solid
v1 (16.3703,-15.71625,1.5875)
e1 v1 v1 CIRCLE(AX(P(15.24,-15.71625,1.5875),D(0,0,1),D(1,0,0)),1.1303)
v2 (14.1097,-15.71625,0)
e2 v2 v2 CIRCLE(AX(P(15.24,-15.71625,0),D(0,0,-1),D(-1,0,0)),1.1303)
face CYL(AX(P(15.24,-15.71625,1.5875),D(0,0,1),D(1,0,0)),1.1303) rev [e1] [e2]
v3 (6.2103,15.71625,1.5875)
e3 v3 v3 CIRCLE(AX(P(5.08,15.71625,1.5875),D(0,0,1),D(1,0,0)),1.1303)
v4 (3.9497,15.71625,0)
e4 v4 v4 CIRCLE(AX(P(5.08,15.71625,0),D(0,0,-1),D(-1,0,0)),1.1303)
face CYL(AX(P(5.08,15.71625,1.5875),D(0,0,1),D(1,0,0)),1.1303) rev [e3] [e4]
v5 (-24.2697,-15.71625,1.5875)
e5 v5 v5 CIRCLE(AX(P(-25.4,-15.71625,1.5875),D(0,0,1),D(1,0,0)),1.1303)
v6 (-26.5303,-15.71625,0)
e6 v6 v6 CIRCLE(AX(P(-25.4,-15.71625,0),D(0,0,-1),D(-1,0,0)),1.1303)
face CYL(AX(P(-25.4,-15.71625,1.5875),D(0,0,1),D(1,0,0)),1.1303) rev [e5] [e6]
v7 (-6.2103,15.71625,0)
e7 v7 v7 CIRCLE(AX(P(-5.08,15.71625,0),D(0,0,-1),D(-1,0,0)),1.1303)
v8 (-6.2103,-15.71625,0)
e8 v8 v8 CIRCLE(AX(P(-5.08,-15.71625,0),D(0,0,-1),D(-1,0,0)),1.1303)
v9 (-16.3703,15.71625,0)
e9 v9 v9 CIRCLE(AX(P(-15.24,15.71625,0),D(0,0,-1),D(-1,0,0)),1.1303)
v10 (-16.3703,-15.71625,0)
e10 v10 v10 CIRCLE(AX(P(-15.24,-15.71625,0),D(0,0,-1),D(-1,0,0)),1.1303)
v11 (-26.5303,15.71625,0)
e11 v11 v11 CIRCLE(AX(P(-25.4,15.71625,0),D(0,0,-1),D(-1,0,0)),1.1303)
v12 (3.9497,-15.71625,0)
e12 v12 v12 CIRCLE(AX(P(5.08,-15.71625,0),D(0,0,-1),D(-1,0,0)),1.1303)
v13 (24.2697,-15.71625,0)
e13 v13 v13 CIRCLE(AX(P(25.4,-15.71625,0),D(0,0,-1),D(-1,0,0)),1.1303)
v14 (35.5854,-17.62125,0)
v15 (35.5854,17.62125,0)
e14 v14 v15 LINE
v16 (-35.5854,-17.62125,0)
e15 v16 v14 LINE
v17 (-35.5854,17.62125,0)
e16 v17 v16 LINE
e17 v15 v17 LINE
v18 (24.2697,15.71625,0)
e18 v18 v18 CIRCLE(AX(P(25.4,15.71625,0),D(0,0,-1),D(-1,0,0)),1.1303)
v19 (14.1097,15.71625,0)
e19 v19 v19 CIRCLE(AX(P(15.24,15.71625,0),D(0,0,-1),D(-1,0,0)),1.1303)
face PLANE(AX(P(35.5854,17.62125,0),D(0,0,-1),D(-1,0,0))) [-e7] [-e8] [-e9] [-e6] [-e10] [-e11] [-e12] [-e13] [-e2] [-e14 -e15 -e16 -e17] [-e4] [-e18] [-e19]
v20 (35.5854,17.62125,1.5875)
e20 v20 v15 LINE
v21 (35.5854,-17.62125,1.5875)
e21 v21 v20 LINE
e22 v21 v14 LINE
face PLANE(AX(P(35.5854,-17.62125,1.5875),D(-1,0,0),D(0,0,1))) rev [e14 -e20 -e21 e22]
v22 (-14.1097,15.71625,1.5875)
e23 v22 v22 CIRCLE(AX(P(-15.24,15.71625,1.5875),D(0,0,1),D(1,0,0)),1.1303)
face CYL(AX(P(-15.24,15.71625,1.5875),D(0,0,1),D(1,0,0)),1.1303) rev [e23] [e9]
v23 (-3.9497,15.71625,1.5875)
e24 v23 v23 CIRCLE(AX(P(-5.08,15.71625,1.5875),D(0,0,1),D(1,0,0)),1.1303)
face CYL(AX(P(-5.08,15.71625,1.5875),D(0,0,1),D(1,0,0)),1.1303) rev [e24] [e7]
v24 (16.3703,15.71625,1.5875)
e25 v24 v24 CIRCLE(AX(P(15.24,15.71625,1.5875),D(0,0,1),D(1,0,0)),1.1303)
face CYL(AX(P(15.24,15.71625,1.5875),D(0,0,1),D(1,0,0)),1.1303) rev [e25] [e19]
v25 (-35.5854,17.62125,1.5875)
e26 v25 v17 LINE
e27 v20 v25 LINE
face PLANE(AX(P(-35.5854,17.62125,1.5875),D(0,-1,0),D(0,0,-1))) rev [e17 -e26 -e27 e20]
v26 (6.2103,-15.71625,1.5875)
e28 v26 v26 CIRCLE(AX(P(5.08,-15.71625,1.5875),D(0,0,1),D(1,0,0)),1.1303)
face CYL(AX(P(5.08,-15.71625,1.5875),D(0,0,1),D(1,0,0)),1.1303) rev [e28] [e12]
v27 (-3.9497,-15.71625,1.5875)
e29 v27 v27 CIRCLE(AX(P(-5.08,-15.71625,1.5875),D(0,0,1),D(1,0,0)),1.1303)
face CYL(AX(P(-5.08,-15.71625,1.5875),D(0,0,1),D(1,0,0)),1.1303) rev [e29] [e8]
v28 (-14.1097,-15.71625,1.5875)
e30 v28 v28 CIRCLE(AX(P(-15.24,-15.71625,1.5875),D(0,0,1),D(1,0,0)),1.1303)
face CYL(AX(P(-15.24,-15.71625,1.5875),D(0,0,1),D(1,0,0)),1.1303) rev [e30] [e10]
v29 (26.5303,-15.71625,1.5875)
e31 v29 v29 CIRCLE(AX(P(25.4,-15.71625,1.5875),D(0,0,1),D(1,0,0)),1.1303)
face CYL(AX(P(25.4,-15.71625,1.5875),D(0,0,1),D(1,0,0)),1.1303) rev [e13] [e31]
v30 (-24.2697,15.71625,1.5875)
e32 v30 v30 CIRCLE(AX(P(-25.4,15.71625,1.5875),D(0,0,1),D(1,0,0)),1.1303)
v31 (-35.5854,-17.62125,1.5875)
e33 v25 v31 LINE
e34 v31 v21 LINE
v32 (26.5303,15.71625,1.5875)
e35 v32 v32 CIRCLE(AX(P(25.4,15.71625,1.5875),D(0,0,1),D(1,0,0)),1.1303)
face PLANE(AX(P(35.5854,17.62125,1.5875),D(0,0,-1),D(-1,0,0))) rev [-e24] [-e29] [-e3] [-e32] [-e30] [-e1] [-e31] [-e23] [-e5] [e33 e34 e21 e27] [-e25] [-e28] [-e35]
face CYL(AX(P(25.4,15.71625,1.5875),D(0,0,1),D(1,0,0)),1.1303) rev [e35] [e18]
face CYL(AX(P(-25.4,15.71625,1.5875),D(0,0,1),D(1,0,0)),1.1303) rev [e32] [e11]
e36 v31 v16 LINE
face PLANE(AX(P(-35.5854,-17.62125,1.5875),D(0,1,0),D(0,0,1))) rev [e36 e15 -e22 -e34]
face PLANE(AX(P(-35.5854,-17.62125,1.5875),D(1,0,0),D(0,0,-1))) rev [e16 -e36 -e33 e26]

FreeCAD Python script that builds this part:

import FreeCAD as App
import Part
import Sketcher

V = App.Vector
Q = App.Units.Quantity

doc = App.newDocument("Part")
body = doc.addObject("PartDesign::Body", "Body")

# Sketch on XY plane
sketch1 = body.newObject("Sketcher::SketchObject", "Sketch")
sketch1.AttachmentSupport = (doc.getObject("XY_Plane"), [""])
sketch1.MapMode = "FlatFace"
sketch1.addGeometry(Part.LineSegment(V(-35.5854, 17.62125, 0), V(-35.5854, -17.62125, 0)), False)
sketch1.addGeometry(Part.LineSegment(V(-35.5854, -17.62125, 0), V(35.5854, -17.62125, 0)), False)
sketch1.addGeometry(Part.LineSegment(V(35.5854, -17.62125, 0), V(35.5854, 17.62125, 0)), False)
sketch1.addGeometry(Part.LineSegment(V(35.5854, 17.62125, 0), V(-35.5854, 17.62125, 0)), False)
sketch1.addConstraint(Sketcher.Constraint("Coincident", 0, 2, 1, 1))
sketch1.addConstraint(Sketcher.Constraint("Coincident", 1, 2, 2, 1))
sketch1.addConstraint(Sketcher.Constraint("Coincident", 2, 2, 3, 1))
sketch1.addConstraint(Sketcher.Constraint("Coincident", 3, 2, 0, 1))
sketch1.addConstraint(Sketcher.Constraint("Vertical", 0))
sketch1.addConstraint(Sketcher.Constraint("Horizontal", 1))
sketch1.addConstraint(Sketcher.Constraint("Vertical", 2))
sketch1.addConstraint(Sketcher.Constraint("Horizontal", 3))
sketch1.addConstraint(Sketcher.Constraint("Symmetric", 0, 2, 2, 2, -1, 1))
sketch1.addConstraint(Sketcher.Constraint("DistanceX", 1, 1, 1, 2, Q("2.802 in")))
sketch1.addConstraint(Sketcher.Constraint("DistanceY", 0, 2, 0, 1, Q("1.3875 in")))
pad1 = body.newObject("PartDesign::Pad", "Pad")
pad1.Profile = sketch1
pad1.Length = Q("0.0625 in")

# Sketch on YZ plane
sketch2 = body.newObject("Sketcher::SketchObject", "Sketch001")
sketch2.AttachmentSupport = (doc.getObject("YZ_Plane"), [""])
sketch2.MapMode = "FlatFace"
sketch2.AttachmentOffset = App.Placement(V(0, 0, -1 * 25.4), App.Rotation())
sketch2.addGeometry(Part.LineSegment(V(15.71625, -2.266653, 0), V(15.71625, 1.5875, 0)), False)
sketch2.addGeometry(Part.LineSegment(V(15.71625, 1.5875, 0), V(14.58595, 1.5875, 0)), False)
sketch2.addGeometry(Part.LineSegment(V(14.58595, 1.5875, 0), V(14.58595, -1.5875, 0)), False)
sketch2.addGeometry(Part.LineSegment(V(14.58595, -1.5875, 0), V(15.71625, -2.266653, 0)), False)
sketch2.addGeometry(Part.LineSegment(V(15.71625, 1.5875, 0), V(15.71625, -2.266653, 0)), True)  # axis
sketch2.addConstraint(Sketcher.Constraint("Coincident", 0, 2, 1, 1))
sketch2.addConstraint(Sketcher.Constraint("Coincident", 1, 2, 2, 1))
sketch2.addConstraint(Sketcher.Constraint("Coincident", 2, 2, 3, 1))
sketch2.addConstraint(Sketcher.Constraint("Coincident", 3, 2, 0, 1))
sketch2.addConstraint(Sketcher.Constraint("Vertical", 0))
sketch2.addConstraint(Sketcher.Constraint("Horizontal", 1))
sketch2.addConstraint(Sketcher.Constraint("Vertical", 2))
sketch2.addConstraint(Sketcher.Constraint("Vertical", 4))
sketch2.addConstraint(Sketcher.Constraint("Coincident", 4, 1, 0, 2))
sketch2.addConstraint(Sketcher.Constraint("Equal", 0, 4))
sketch2.addConstraint(Sketcher.Constraint("Angle", 3, Q("-31 deg")))
sketch2.addConstraint(Sketcher.Constraint("DistanceY", 2, 2, 2, 1, Q("0.125 in")))
sketch2.addConstraint(Sketcher.Constraint("DistanceX", 1, 2, 1, 1, Q("0.0445 in")))
sketch2.addConstraint(Sketcher.Constraint("DistanceY", -1, 1, 0, 2, Q("0.0625 in")))
sketch2.addConstraint(Sketcher.Constraint("DistanceX", -1, 1, 0, 2, 15.71625))
groove = body.newObject("PartDesign::Groove", "Groove")
groove.Profile = sketch2
groove.ReferenceAxis = (sketch2, ["Axis0"])
groove.Angle = 360
doc.recompute()

linearpattern = body.newObject("PartDesign::LinearPattern", "LinearPattern")
linearpattern.Originals = [groove]
linearpattern.Direction = (doc.getObject("X_Axis"), [""])
linearpattern.Mode = "offset"
linearpattern.Offset = Q("0.4 in")
linearpattern.Occurrences = 6
body.Tip = linearpattern
doc.recompute()

mirrored = body.newObject("PartDesign::Mirrored", "Mirrored")
mirrored.Originals = [groove]
mirrored.MirrorPlane = (doc.getObject("XZ_Plane"), [""])
body.Tip = mirrored

# Sketch on YZ plane
sketch3 = body.newObject("Sketcher::SketchObject", "Sketch002")
sketch3.AttachmentSupport = (doc.getObject("YZ_Plane"), [""])
sketch3.MapMode = "FlatFace"
sketch3.AttachmentOffset = App.Placement(V(0, 0, -0.6 * 25.4), App.Rotation())
sketch3.addGeometry(Part.LineSegment(V(-15.71625, 1.5875, 0), V(-15.71625, -2.266653, 0)), False)
sketch3.addGeometry(Part.LineSegment(V(-15.71625, -2.266653, 0), V(-14.58595, -1.5875, 0)), False)
sketch3.addGeometry(Part.LineSegment(V(-14.58595, -1.5875, 0), V(-14.58595, 1.5875, 0)), False)
sketch3.addGeometry(Part.LineSegment(V(-14.58595, 1.5875, 0), V(-15.71625, 1.5875, 0)), False)
sketch3.addGeometry(Part.LineSegment(V(-15.71625, -2.266653, 0), V(-15.71625, 1.5875, 0)), True)  # axis
sketch3.addConstraint(Sketcher.Constraint("Coincident", 0, 2, 1, 1))
sketch3.addConstraint(Sketcher.Constraint("Coincident", 1, 2, 2, 1))
sketch3.addConstraint(Sketcher.Constraint("Coincident", 2, 2, 3, 1))
sketch3.addConstraint(Sketcher.Constraint("Coincident", 3, 2, 0, 1))
sketch3.addConstraint(Sketcher.Constraint("Vertical", 0))
sketch3.addConstraint(Sketcher.Constraint("Vertical", 2))
sketch3.addConstraint(Sketcher.Constraint("Horizontal", 3))
sketch3.addConstraint(Sketcher.Constraint("Vertical", 4))
sketch3.addConstraint(Sketcher.Constraint("Coincident", 4, 1, 0, 2))
sketch3.addConstraint(Sketcher.Constraint("Horizontal", 2, 2, 4, 2))
sketch3.addConstraint(Sketcher.Constraint("Angle", 1, Q("31 deg")))
sketch3.addConstraint(Sketcher.Constraint("DistanceY", 2, 1, 2, 2, Q("0.125 in")))
sketch3.addConstraint(Sketcher.Constraint("DistanceX", 3, 2, 3, 1, Q("0.0445 in")))
sketch3.addConstraint(Sketcher.Constraint("DistanceY", 1, 2, -1, 1, Q("0.0625 in")))
sketch3.addConstraint(Sketcher.Constraint("DistanceX", 0, 2, -1, 1, 15.71625))
groove2 = body.newObject("PartDesign::Groove", "Groove001")
groove2.Profile = sketch3
groove2.ReferenceAxis = (sketch3, ["Axis0"])
groove2.Angle = 360

# Sketch on YZ plane
sketch4 = body.newObject("Sketcher::SketchObject", "Sketch003")
sketch4.AttachmentSupport = (doc.getObject("YZ_Plane"), [""])
sketch4.MapMode = "FlatFace"
sketch4.AttachmentOffset = App.Placement(V(0, 0, -0.2 * 25.4), App.Rotation())
sketch4.addGeometry(Part.LineSegment(V(-15.71625, 1.5875, 0), V(-15.71625, -2.266653, 0)), False)
sketch4.addGeometry(Part.LineSegment(V(-15.71625, -2.266653, 0), V(-14.58595, -1.5875, 0)), False)
sketch4.addGeometry(Part.LineSegment(V(-14.58595, -1.5875, 0), V(-14.58595, 1.5875, 0)), False)
sketch4.addGeometry(Part.LineSegment(V(-14.58595, 1.5875, 0), V(-15.71625, 1.5875, 0)), False)
sketch4.addGeometry(Part.LineSegment(V(-15.71625, -2.266653, 0), V(-15.71625, 1.5875, 0)), True)  # axis
sketch4.addConstraint(Sketcher.Constraint("Coincident", 0, 2, 1, 1))
sketch4.addConstraint(Sketcher.Constraint("Coincident", 1, 2, 2, 1))
sketch4.addConstraint(Sketcher.Constraint("Coincident", 2, 2, 3, 1))
sketch4.addConstraint(Sketcher.Constraint("Coincident", 3, 2, 0, 1))
sketch4.addConstraint(Sketcher.Constraint("Vertical", 0))
sketch4.addConstraint(Sketcher.Constraint("Vertical", 2))
sketch4.addConstraint(Sketcher.Constraint("Horizontal", 3))
sketch4.addConstraint(Sketcher.Constraint("Vertical", 4))
sketch4.addConstraint(Sketcher.Constraint("Coincident", 4, 1, 0, 2))
sketch4.addConstraint(Sketcher.Constraint("Horizontal", 2, 2, 4, 2))
sketch4.addConstraint(Sketcher.Constraint("Angle", 1, Q("31 deg")))
sketch4.addConstraint(Sketcher.Constraint("DistanceY", 2, 1, 2, 2, Q("0.125 in")))
sketch4.addConstraint(Sketcher.Constraint("DistanceX", 3, 2, 3, 1, Q("0.0445 in")))
sketch4.addConstraint(Sketcher.Constraint("DistanceY", 1, 2, -1, 1, Q("0.0625 in")))
sketch4.addConstraint(Sketcher.Constraint("DistanceX", 0, 2, -1, 1, 15.71625))
groove3 = body.newObject("PartDesign::Groove", "Groove002")
groove3.Profile = sketch4
groove3.ReferenceAxis = (sketch4, ["Axis0"])
groove3.Angle = 360

# Sketch on YZ plane
sketch5 = body.newObject("Sketcher::SketchObject", "Sketch004")
sketch5.AttachmentSupport = (doc.getObject("YZ_Plane"), [""])
sketch5.MapMode = "FlatFace"
sketch5.AttachmentOffset = App.Placement(V(0, 0, 0.2 * 25.4), App.Rotation())
sketch5.addGeometry(Part.LineSegment(V(-15.71625, 1.5875, 0), V(-15.71625, -2.266653, 0)), False)
sketch5.addGeometry(Part.LineSegment(V(-15.71625, -2.266653, 0), V(-14.58595, -1.5875, 0)), False)
sketch5.addGeometry(Part.LineSegment(V(-14.58595, -1.5875, 0), V(-14.58595, 1.5875, 0)), False)
sketch5.addGeometry(Part.LineSegment(V(-14.58595, 1.5875, 0), V(-15.71625, 1.5875, 0)), False)
sketch5.addGeometry(Part.LineSegment(V(-15.71625, -2.266653, 0), V(-15.71625, 1.5875, 0)), True)  # axis
sketch5.addConstraint(Sketcher.Constraint("Coincident", 0, 2, 1, 1))
sketch5.addConstraint(Sketcher.Constraint("Coincident", 1, 2, 2, 1))
sketch5.addConstraint(Sketcher.Constraint("Coincident", 2, 2, 3, 1))
sketch5.addConstraint(Sketcher.Constraint("Coincident", 3, 2, 0, 1))
sketch5.addConstraint(Sketcher.Constraint("Vertical", 0))
sketch5.addConstraint(Sketcher.Constraint("Vertical", 2))
sketch5.addConstraint(Sketcher.Constraint("Horizontal", 3))
sketch5.addConstraint(Sketcher.Constraint("Vertical", 4))
sketch5.addConstraint(Sketcher.Constraint("Coincident", 4, 1, 0, 2))
sketch5.addConstraint(Sketcher.Constraint("Horizontal", 2, 2, 4, 2))
sketch5.addConstraint(Sketcher.Constraint("Angle", 1, Q("31 deg")))
sketch5.addConstraint(Sketcher.Constraint("DistanceY", 2, 1, 2, 2, Q("0.125 in")))
sketch5.addConstraint(Sketcher.Constraint("DistanceX", 3, 2, 3, 1, Q("0.0445 in")))
sketch5.addConstraint(Sketcher.Constraint("DistanceY", 1, 2, -1, 1, Q("0.0625 in")))
sketch5.addConstraint(Sketcher.Constraint("DistanceX", 0, 2, -1, 1, 15.71625))
groove4 = body.newObject("PartDesign::Groove", "Groove003")
groove4.Profile = sketch5
groove4.ReferenceAxis = (sketch5, ["Axis0"])
groove4.Angle = 360

# Sketch on YZ plane
sketch6 = body.newObject("Sketcher::SketchObject", "Sketch005")
sketch6.AttachmentSupport = (doc.getObject("YZ_Plane"), [""])
sketch6.MapMode = "FlatFace"
sketch6.AttachmentOffset = App.Placement(V(0, 0, 0.6 * 25.4), App.Rotation())
sketch6.addGeometry(Part.LineSegment(V(-15.71625, 1.5875, 0), V(-15.71625, -2.266653, 0)), False)
sketch6.addGeometry(Part.LineSegment(V(-15.71625, -2.266653, 0), V(-14.58595, -1.5875, 0)), False)
sketch6.addGeometry(Part.LineSegment(V(-14.58595, -1.5875, 0), V(-14.58595, 1.5875, 0)), False)
sketch6.addGeometry(Part.LineSegment(V(-14.58595, 1.5875, 0), V(-15.71625, 1.5875, 0)), False)
sketch6.addGeometry(Part.LineSegment(V(-15.71625, -2.266653, 0), V(-15.71625, 1.5875, 0)), True)  # axis
sketch6.addConstraint(Sketcher.Constraint("Coincident", 0, 2, 1, 1))
sketch6.addConstraint(Sketcher.Constraint("Coincident", 1, 2, 2, 1))
sketch6.addConstraint(Sketcher.Constraint("Coincident", 2, 2, 3, 1))
sketch6.addConstraint(Sketcher.Constraint("Coincident", 3, 2, 0, 1))
sketch6.addConstraint(Sketcher.Constraint("Vertical", 0))
sketch6.addConstraint(Sketcher.Constraint("Vertical", 2))
sketch6.addConstraint(Sketcher.Constraint("Horizontal", 3))
sketch6.addConstraint(Sketcher.Constraint("Vertical", 4))
sketch6.addConstraint(Sketcher.Constraint("Coincident", 4, 1, 0, 2))
sketch6.addConstraint(Sketcher.Constraint("Horizontal", 2, 2, 4, 2))
sketch6.addConstraint(Sketcher.Constraint("Angle", 1, Q("31 deg")))
sketch6.addConstraint(Sketcher.Constraint("DistanceY", 2, 1, 2, 2, Q("0.125 in")))
sketch6.addConstraint(Sketcher.Constraint("DistanceX", 3, 2, 3, 1, Q("0.0445 in")))
sketch6.addConstraint(Sketcher.Constraint("DistanceY", 1, 2, -1, 1, Q("0.0625 in")))
sketch6.addConstraint(Sketcher.Constraint("DistanceX", 0, 2, -1, 1, 15.71625))
groove5 = body.newObject("PartDesign::Groove", "Groove004")
groove5.Profile = sketch6
groove5.ReferenceAxis = (sketch6, ["Axis0"])
groove5.Angle = 360

# Sketch on YZ plane
sketch7 = body.newObject("Sketcher::SketchObject", "Sketch006")
sketch7.AttachmentSupport = (doc.getObject("YZ_Plane"), [""])
sketch7.MapMode = "FlatFace"
sketch7.AttachmentOffset = App.Placement(V(0, 0, 1 * 25.4), App.Rotation())
sketch7.addGeometry(Part.LineSegment(V(-15.71625, 1.5875, 0), V(-15.71625, -2.266653, 0)), False)
sketch7.addGeometry(Part.LineSegment(V(-15.71625, -2.266653, 0), V(-14.58595, -1.5875, 0)), False)
sketch7.addGeometry(Part.LineSegment(V(-14.58595, -1.5875, 0), V(-14.58595, 1.5875, 0)), False)
sketch7.addGeometry(Part.LineSegment(V(-14.58595, 1.5875, 0), V(-15.71625, 1.5875, 0)), False)
sketch7.addGeometry(Part.LineSegment(V(-15.71625, -2.266653, 0), V(-15.71625, 1.5875, 0)), True)  # axis
sketch7.addConstraint(Sketcher.Constraint("Coincident", 0, 2, 1, 1))
sketch7.addConstraint(Sketcher.Constraint("Coincident", 1, 2, 2, 1))
sketch7.addConstraint(Sketcher.Constraint("Coincident", 2, 2, 3, 1))
sketch7.addConstraint(Sketcher.Constraint("Coincident", 3, 2, 0, 1))
sketch7.addConstraint(Sketcher.Constraint("Vertical", 0))
sketch7.addConstraint(Sketcher.Constraint("Vertical", 2))
sketch7.addConstraint(Sketcher.Constraint("Horizontal", 3))
sketch7.addConstraint(Sketcher.Constraint("Vertical", 4))
sketch7.addConstraint(Sketcher.Constraint("Coincident", 4, 1, 0, 2))
sketch7.addConstraint(Sketcher.Constraint("Horizontal", 2, 2, 4, 2))
sketch7.addConstraint(Sketcher.Constraint("Angle", 1, Q("31 deg")))
sketch7.addConstraint(Sketcher.Constraint("DistanceY", 2, 1, 2, 2, Q("0.125 in")))
sketch7.addConstraint(Sketcher.Constraint("DistanceX", 3, 2, 3, 1, Q("0.0445 in")))
sketch7.addConstraint(Sketcher.Constraint("DistanceY", 1, 2, -1, 1, Q("0.0625 in")))
sketch7.addConstraint(Sketcher.Constraint("DistanceX", 0, 2, -1, 1, 15.71625))
groove6 = body.newObject("PartDesign::Groove", "Groove005")
groove6.Profile = sketch7
groove6.ReferenceAxis = (sketch7, ["Axis0"])
groove6.Angle = 360

doc.recompute()
